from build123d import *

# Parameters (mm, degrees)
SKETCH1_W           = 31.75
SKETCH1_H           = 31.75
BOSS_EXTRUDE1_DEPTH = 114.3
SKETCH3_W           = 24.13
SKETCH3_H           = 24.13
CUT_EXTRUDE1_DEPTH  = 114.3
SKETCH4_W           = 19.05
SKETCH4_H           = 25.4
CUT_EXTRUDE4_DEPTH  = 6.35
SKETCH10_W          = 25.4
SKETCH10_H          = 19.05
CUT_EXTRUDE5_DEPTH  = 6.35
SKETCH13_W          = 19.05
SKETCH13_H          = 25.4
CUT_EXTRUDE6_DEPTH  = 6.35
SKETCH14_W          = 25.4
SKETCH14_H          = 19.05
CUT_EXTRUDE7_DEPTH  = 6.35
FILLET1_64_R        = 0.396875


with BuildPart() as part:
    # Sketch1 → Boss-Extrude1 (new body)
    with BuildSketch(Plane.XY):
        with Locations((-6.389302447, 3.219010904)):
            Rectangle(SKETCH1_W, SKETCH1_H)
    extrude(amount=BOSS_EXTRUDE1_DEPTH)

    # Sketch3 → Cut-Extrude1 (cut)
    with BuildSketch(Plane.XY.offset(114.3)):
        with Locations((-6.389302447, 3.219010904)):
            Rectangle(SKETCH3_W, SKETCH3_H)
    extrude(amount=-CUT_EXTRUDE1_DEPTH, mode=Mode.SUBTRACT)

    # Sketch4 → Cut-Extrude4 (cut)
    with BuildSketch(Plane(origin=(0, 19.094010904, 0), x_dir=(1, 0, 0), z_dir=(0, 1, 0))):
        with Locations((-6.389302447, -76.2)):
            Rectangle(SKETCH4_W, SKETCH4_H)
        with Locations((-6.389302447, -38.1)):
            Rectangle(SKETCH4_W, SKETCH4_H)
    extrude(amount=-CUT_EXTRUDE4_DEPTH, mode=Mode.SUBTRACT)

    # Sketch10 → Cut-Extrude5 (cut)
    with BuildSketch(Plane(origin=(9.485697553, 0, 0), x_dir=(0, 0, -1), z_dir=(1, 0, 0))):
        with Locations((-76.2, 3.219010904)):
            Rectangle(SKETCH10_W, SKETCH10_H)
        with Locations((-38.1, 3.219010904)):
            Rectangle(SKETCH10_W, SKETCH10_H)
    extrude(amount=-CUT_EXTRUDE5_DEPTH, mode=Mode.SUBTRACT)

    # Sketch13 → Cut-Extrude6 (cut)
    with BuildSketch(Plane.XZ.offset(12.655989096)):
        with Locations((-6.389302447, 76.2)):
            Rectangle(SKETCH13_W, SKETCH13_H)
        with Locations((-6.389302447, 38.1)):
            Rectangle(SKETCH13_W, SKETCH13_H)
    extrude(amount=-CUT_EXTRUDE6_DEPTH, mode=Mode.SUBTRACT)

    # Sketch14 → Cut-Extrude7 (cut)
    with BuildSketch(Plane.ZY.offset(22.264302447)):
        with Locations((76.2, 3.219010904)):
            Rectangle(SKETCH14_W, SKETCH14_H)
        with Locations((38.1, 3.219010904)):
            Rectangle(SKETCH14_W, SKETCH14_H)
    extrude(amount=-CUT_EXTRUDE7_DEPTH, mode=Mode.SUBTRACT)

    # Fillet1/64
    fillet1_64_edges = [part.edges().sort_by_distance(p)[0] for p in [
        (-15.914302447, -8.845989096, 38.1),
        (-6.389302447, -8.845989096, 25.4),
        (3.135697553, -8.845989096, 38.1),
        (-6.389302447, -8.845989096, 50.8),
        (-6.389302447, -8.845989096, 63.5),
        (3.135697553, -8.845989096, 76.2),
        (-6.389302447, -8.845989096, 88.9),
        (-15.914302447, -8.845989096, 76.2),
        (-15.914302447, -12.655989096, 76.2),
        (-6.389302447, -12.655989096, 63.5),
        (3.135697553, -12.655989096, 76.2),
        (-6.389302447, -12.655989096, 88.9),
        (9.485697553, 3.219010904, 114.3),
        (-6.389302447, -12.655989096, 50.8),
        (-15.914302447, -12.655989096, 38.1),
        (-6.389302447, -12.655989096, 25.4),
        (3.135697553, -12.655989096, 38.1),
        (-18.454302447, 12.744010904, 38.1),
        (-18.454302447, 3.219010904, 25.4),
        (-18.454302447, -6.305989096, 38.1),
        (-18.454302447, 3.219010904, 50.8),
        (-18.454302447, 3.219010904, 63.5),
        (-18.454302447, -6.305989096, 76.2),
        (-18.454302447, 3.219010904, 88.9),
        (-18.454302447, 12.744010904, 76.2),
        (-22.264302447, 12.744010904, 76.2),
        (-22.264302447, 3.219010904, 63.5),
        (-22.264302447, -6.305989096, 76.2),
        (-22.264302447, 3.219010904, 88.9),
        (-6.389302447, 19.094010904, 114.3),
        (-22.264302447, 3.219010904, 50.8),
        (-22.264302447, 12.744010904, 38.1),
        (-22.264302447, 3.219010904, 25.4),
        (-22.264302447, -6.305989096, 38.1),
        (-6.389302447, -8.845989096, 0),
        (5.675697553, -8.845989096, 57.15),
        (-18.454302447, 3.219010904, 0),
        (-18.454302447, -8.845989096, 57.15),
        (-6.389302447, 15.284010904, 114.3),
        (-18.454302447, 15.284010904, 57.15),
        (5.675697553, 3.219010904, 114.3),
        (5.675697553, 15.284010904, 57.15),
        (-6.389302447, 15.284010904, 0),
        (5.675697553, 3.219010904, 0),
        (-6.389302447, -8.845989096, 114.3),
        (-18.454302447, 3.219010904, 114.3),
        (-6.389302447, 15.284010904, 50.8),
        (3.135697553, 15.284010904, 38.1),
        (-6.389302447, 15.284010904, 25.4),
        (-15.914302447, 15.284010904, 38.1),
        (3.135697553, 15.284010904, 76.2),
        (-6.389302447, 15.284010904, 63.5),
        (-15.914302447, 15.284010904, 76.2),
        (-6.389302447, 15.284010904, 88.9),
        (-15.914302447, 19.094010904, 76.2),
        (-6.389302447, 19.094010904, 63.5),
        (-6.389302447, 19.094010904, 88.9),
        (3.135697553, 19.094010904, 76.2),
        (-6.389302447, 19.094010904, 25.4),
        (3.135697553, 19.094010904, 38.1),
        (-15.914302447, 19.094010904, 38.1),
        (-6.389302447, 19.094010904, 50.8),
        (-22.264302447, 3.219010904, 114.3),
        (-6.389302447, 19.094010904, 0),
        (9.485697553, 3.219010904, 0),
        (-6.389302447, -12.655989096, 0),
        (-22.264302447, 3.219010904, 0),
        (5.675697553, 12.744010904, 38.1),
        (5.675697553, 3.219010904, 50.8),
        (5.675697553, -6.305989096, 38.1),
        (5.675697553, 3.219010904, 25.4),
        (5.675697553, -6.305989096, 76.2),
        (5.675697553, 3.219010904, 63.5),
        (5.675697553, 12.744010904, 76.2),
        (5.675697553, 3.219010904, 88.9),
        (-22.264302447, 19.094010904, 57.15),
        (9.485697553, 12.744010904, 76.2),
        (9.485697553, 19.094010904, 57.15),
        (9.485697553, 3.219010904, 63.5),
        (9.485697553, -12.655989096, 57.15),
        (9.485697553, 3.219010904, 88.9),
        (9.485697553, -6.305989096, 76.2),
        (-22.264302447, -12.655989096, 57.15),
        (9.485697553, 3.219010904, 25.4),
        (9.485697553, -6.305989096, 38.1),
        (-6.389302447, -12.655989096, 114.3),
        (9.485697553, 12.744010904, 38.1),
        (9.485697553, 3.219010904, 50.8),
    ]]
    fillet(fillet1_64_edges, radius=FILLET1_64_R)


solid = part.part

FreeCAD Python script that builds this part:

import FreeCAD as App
import Part
import Sketcher
Q = App.Units.Quantity


def edges_at(feature, points):
    """Names of the edges that pass closest to the given points."""
    edges = feature.Shape.Edges
    near = lambda p: min(range(len(edges)), key=lambda i: edges[i].distToShape(Part.Vertex(*p))[0])
    return sorted({f"Edge{near(p) + 1}" for p in points})


def add_polygon(sketch, points):
    """Adds a closed chain of lines whose ends are joined by coincident constraints."""
    first, n = sketch.GeometryCount, len(points)
    for a, b in zip(points, points[1:] + points[:1]):
        sketch.addGeometry(Part.LineSegment(App.Vector(*a, 0), App.Vector(*b, 0)), False)
    for i in range(n):
        sketch.addConstraint(Sketcher.Constraint("Coincident", first + i, 2, first + (i + 1) % n, 1))

doc = App.newDocument("Part")
params = doc.addObject("Spreadsheet::Sheet", "Params")
for row, (alias, value) in enumerate([
    ("sketch1_width", "1.25 in"),
    ("pad1_length", "4.5 in"),
    ("sketch2_width", "0.95 in"),
    ("pocket1_length", "4.5 in"),
    ("sketch3_height", "1 in"),
    ("sketch3_width", "0.75 in"),
    ("pocket2_length", "0.25 in"),
    ("sketch4_height", "1 in"),
    ("sketch4_width", "0.75 in"),
    ("pocket3_length", "0.25 in"),
    ("sketch5_height", "1 in"),
    ("sketch5_width", "0.75 in"),
    ("pocket4_length", "0.25 in"),
    ("sketch6_height", "1 in"),
    ("sketch6_width", "0.75 in"),
    ("pocket5_length", "0.25 in"),
    ("fillet_radius", "0.015625 in"),
], start=1):
    params.set(f"A{row}", alias)
    params.set(f"B{row}", "=" + value)
    params.setAlias(f"B{row}", alias)

body = doc.addObject("PartDesign::Body", "Body")

sketch1 = body.newObject("Sketcher::SketchObject", "Sketch")
sketch1.AttachmentSupport = (doc.getObject("XY_Plane"), [""])
sketch1.MapMode = "FlatFace"
add_polygon(sketch1, [(-22.264302, 19.094011), (-22.264302, -12.655989), (9.485698, -12.655989), (9.485698, 19.094011)])
sketch1.addConstraint([
    Sketcher.Constraint("Vertical", 0),
    Sketcher.Constraint("Horizontal", 1),
    Sketcher.Constraint("Vertical", 2),
    Sketcher.Constraint("Horizontal", 3),
    Sketcher.Constraint("Equal", 3, 0),
    Sketcher.Constraint("DistanceX", 1, 1, 1, 2, Q("1.25 in")),
    Sketcher.Constraint("DistanceY", 0, 2, -1, 1, 12.655989),
    Sketcher.Constraint("DistanceX", 0, 2, -1, 1, 22.264302),
])
sketch1.setExpression("Constraints[9]", "Params.sketch1_width")
pad1 = body.newObject("PartDesign::Pad", "Pad")
pad1.Profile = sketch1
pad1.setExpression("Length", "Params.pad1_length")

sketch2 = body.newObject("Sketcher::SketchObject", "Sketch001")
sketch2.AttachmentSupport = (doc.getObject("XY_Plane"), [""])
sketch2.MapMode = "FlatFace"
sketch2.AttachmentOffset = App.Placement(App.Vector(0, 0, 4.5 * 25.4), App.Rotation())
add_polygon(sketch2, [(-18.454302, 15.284011), (-18.454302, -8.845989), (5.675698, -8.845989), (5.675698, 15.284011)])
sketch2.addConstraint([
    Sketcher.Constraint("Vertical", 0),
    Sketcher.Constraint("Horizontal", 1),
    Sketcher.Constraint("Vertical", 2),
    Sketcher.Constraint("Horizontal", 3),
    Sketcher.Constraint("Equal", 3, 0),
    Sketcher.Constraint("DistanceX", 1, 1, 1, 2, Q("0.95 in")),
    Sketcher.Constraint("DistanceY", 0, 2, -1, 1, 8.845989),
    Sketcher.Constraint("DistanceX", 0, 2, -1, 1, 18.454302),
])
sketch2.setExpression("Constraints[9]", "Params.sketch2_width")
pocket1 = body.newObject("PartDesign::Pocket", "Pocket")
pocket1.Profile = sketch2
pocket1.setExpression("Length", "Params.pocket1_length")

sketch3 = body.newObject("Sketcher::SketchObject", "Sketch002")
sketch3.AttachmentSupport = (doc.getObject("XZ_Plane"), [""])
sketch3.MapMode = "FlatFace"
sketch3.AttachmentOffset = App.Placement(App.Vector(0, 0, -19.094011), App.Rotation())
add_polygon(sketch3, [(-15.914302, 63.5), (-15.914302, 88.9), (3.135698, 88.9), (3.135698, 63.5)])
add_polygon(sketch3, [(-15.914302, 25.4), (-15.914302, 50.8), (3.135698, 50.8), (3.135698, 25.4)])
sketch3.addConstraint([
    Sketcher.Constraint("Vertical", 0),
    Sketcher.Constraint("Horizontal", 1),
    Sketcher.Constraint("Vertical", 2),
    Sketcher.Constraint("Horizontal", 3),
    Sketcher.Constraint("Vertical", 4),
    Sketcher.Constraint("Horizontal", 5),
    Sketcher.Constraint("Vertical", 6),
    Sketcher.Constraint("Horizontal", 7),
    Sketcher.Constraint("Vertical", 3, 2, 4, 2),
    Sketcher.Constraint("Vertical", 2, 2, 5, 2),
    Sketcher.Constraint("Equal", 2, 4),
    Sketcher.Constraint("DistanceY", 0, 1, 0, 2, Q("1 in")),
    Sketcher.Constraint("DistanceY", -1, 1, 4, 2, Q("2 in")),
    Sketcher.Constraint("DistanceX", 1, 1, 1, 2, Q("0.75 in")),
    Sketcher.Constraint("DistanceY", -1, 1, 0, 2, Q("3.5 in")),
    Sketcher.Constraint("DistanceX", 0, 2, -1, 1, 15.914302),
])
sketch3.setExpression("Constraints[19]", "Params.sketch3_height")
sketch3.setExpression("Constraints[21]", "Params.sketch3_width")
pocket2 = body.newObject("PartDesign::Pocket", "Pocket001")
pocket2.Profile = sketch3
pocket2.setExpression("Length", "Params.pocket2_length")
pocket2.Reversed = True

sketch4 = body.newObject("Sketcher::SketchObject", "Sketch003")
sketch4.AttachmentSupport = (doc.getObject("YZ_Plane"), [""])
sketch4.MapMode = "FlatFace"
sketch4.AttachmentOffset = App.Placement(App.Vector(0, 0, 9.485698), App.Rotation())
add_polygon(sketch4, [(12.744011, 88.9), (-6.305989, 88.9), (-6.305989, 63.5), (12.744011, 63.5)])
add_polygon(sketch4, [(12.744011, 50.8), (-6.305989, 50.8), (-6.305989, 25.4), (12.744011, 25.4)])
sketch4.addConstraint([
    Sketcher.Constraint("Horizontal", 0),
    Sketcher.Constraint("Vertical", 1),
    Sketcher.Constraint("Horizontal", 2),
    Sketcher.Constraint("Vertical", 3),
    Sketcher.Constraint("Horizontal", 4),
    Sketcher.Constraint("Vertical", 5),
    Sketcher.Constraint("Horizontal", 6),
    Sketcher.Constraint("Vertical", 7),
    Sketcher.Constraint("Vertical", 1, 2, 4, 2),
    Sketcher.Constraint("Vertical", 3, 2, 6, 2),
    Sketcher.Constraint("Equal", 3, 5),
    Sketcher.Constraint("DistanceY", 1, 2, 1, 1, Q("1 in")),
    Sketcher.Constraint("DistanceY", -1, 1, 4, 2, Q("2 in")),
    Sketcher.Constraint("DistanceX", 0, 2, 0, 1, Q("0.75 in")),
    Sketcher.Constraint("DistanceY", -1, 1, 0, 2, Q("3.5 in")),
    Sketcher.Constraint("DistanceX", 0, 2, -1, 1, 6.305989),
])
sketch4.setExpression("Constraints[19]", "Params.sketch4_height")
sketch4.setExpression("Constraints[21]", "Params.sketch4_width")
pocket3 = body.newObject("PartDesign::Pocket", "Pocket002")
pocket3.Profile = sketch4
pocket3.setExpression("Length", "Params.pocket3_length")

sketch5 = body.newObject("Sketcher::SketchObject", "Sketch004")
sketch5.AttachmentSupport = (doc.getObject("XZ_Plane"), [""])
sketch5.MapMode = "FlatFace"
sketch5.AttachmentOffset = App.Placement(App.Vector(0, 0, 12.655989), App.Rotation())
add_polygon(sketch5, [(-15.914302, 88.9), (-15.914302, 63.5), (3.135698, 63.5), (3.135698, 88.9)])
add_polygon(sketch5, [(-15.914302, 50.8), (-15.914302, 25.4), (3.135698, 25.4), (3.135698, 50.8)])
sketch5.addConstraint([
    Sketcher.Constraint("Vertical", 0),
    Sketcher.Constraint("Horizontal", 1),
    Sketcher.Constraint("Vertical", 2),
    Sketcher.Constraint("Horizontal", 3),
    Sketcher.Constraint("Vertical", 4),
    Sketcher.Constraint("Horizontal", 5),
    Sketcher.Constraint("Vertical", 6),
    Sketcher.Constraint("Horizontal", 7),
    Sketcher.Constraint("Vertical", 3, 2, 4, 2),
    Sketcher.Constraint("Vertical", 2, 2, 5, 2),
    Sketcher.Constraint("Equal", 2, 4),
    Sketcher.Constraint("DistanceY", 0, 2, 0, 1, Q("1 in")),
    Sketcher.Constraint("DistanceY", -1, 1, 4, 2, Q("1 in")),
    Sketcher.Constraint("DistanceX", 1, 1, 1, 2, Q("0.75 in")),
    Sketcher.Constraint("DistanceY", -1, 1, 0, 2, Q("2.5 in")),
    Sketcher.Constraint("DistanceX", 0, 2, -1, 1, 15.914302),
])
sketch5.setExpression("Constraints[19]", "Params.sketch5_height")
sketch5.setExpression("Constraints[21]", "Params.sketch5_width")
pocket4 = body.newObject("PartDesign::Pocket", "Pocket003")
pocket4.Profile = sketch5
pocket4.setExpression("Length", "Params.pocket4_length")

sketch6 = body.newObject("Sketcher::SketchObject", "Sketch005")
sketch6.AttachmentSupport = (doc.getObject("YZ_Plane"), [""])
sketch6.MapMode = "FlatFace"
sketch6.AttachmentOffset = App.Placement(App.Vector(0, 0, -22.264302), App.Rotation())
add_polygon(sketch6, [(12.744011, 63.5), (-6.305989, 63.5), (-6.305989, 88.9), (12.744011, 88.9)])
add_polygon(sketch6, [(12.744011, 25.4), (-6.305989, 25.4), (-6.305989, 50.8), (12.744011, 50.8)])
sketch6.addConstraint([
    Sketcher.Constraint("Horizontal", 0),
    Sketcher.Constraint("Vertical", 1),
    Sketcher.Constraint("Horizontal", 2),
    Sketcher.Constraint("Vertical", 3),
    Sketcher.Constraint("Horizontal", 4),
    Sketcher.Constraint("Vertical", 5),
    Sketcher.Constraint("Horizontal", 6),
    Sketcher.Constraint("Vertical", 7),
    Sketcher.Constraint("Vertical", 1, 2, 4, 2),
    Sketcher.Constraint("Vertical", 3, 2, 6, 2),
    Sketcher.Constraint("Equal", 3, 5),
    Sketcher.Constraint("DistanceY", 1, 1, 1, 2, Q("1 in")),
    Sketcher.Constraint("DistanceY", -1, 1, 4, 2, Q("1 in")),
    Sketcher.Constraint("DistanceX", 0, 2, 0, 1, Q("0.75 in")),
    Sketcher.Constraint("DistanceY", -1, 1, 0, 2, Q("2.5 in")),
    Sketcher.Constraint("DistanceX", 0, 2, -1, 1, 6.305989),
])
sketch6.setExpression("Constraints[19]", "Params.sketch6_height")
sketch6.setExpression("Constraints[21]", "Params.sketch6_width")
pocket5 = body.newObject("PartDesign::Pocket", "Pocket004")
pocket5.Profile = sketch6
pocket5.setExpression("Length", "Params.pocket5_length")
pocket5.Reversed = True
doc.recompute()

fillet = body.newObject("PartDesign::Fillet", "Fillet")
fillet.Base = (pocket5, edges_at(pocket5, [
    (-15.914, -8.846, 38.1),
    (-6.389, -8.846, 25.4),
    (3.136, -8.846, 38.1),
    (-6.389, -8.846, 50.8),
    (-6.389, -8.846, 63.5),
    (3.136, -8.846, 76.2),
    (-6.389, -8.846, 88.9),
    (-15.914, -8.846, 76.2),
    (-15.914, -12.656, 76.2),
    (-6.389, -12.656, 63.5),
    (3.136, -12.656, 76.2),
    (-6.389, -12.656, 88.9),
    (9.486, 3.219, 114.3),
    (-6.389, -12.656, 50.8),
    (-15.914, -12.656, 38.1),
    (-6.389, -12.656, 25.4),
    (3.136, -12.656, 38.1),
    (-18.454, 12.744, 38.1),
    (-18.454, 3.219, 25.4),
    (-18.454, -6.306, 38.1),
    (-18.454, 3.219, 50.8),
    (-18.454, 3.219, 63.5),
    (-18.454, -6.306, 76.2),
    (-18.454, 3.219, 88.9),
    (-18.454, 12.744, 76.2),
    (-22.264, 12.744, 76.2),
    (-22.264, 3.219, 63.5),
    (-22.264, -6.306, 76.2),
    (-22.264, 3.219, 88.9),
    (-6.389, 19.094, 114.3),
    (-22.264, 3.219, 50.8),
    (-22.264, 12.744, 38.1),
    (-22.264, 3.219, 25.4),
    (-22.264, -6.306, 38.1),
    (-6.389, -8.846, 0),
    (5.676, -8.846, 57.15),
    (-18.454, 3.219, 0),
    (-18.454, -8.846, 57.15),
    (-6.389, 15.284, 114.3),
    (-18.454, 15.284, 57.15),
    (5.676, 3.219, 114.3),
    (5.676, 15.284, 57.15),
    (-6.389, 15.284, 0),
    (5.676, 3.219, 0),
    (-6.389, -8.846, 114.3),
    (-18.454, 3.219, 114.3),
    (-6.389, 15.284, 50.8),
    (3.136, 15.284, 38.1),
    (-6.389, 15.284, 25.4),
    (-15.914, 15.284, 38.1),
    (3.136, 15.284, 76.2),
    (-6.389, 15.284, 63.5),
    (-15.914, 15.284, 76.2),
    (-6.389, 15.284, 88.9),
    (-15.914, 19.094, 76.2),
    (-6.389, 19.094, 63.5),
    (-6.389, 19.094, 88.9),
    (3.136, 19.094, 76.2),
    (-6.389, 19.094, 25.4),
    (3.136, 19.094, 38.1),
    (-15.914, 19.094, 38.1),
    (-6.389, 19.094, 50.8),
    (-22.264, 3.219, 114.3),
    (-6.389, 19.094, 0),
    (9.486, 3.219, 0),
    (-6.389, -12.656, 0),
    (-22.264, 3.219, 0),
    (5.676, 12.744, 38.1),
    (5.676, 3.219, 50.8),
    (5.676, -6.306, 38.1),
    (5.676, 3.219, 25.4),
    (5.676, -6.306, 76.2),
    (5.676, 3.219, 63.5),
    (5.676, 12.744, 76.2),
    (5.676, 3.219, 88.9),
    (-22.264, 19.094, 57.15),
    (9.486, 12.744, 76.2),
    (9.486, 19.094, 57.15),
    (9.486, 3.219, 63.5),
    (9.486, -12.656, 57.15),
    (9.486, 3.219, 88.9),
    (9.486, -6.306, 76.2),
    (-22.264, -12.656, 57.15),
    (9.486, 3.219, 25.4),
    (9.486, -6.306, 38.1),
    (-6.389, -12.656, 114.3),
    (9.486, 12.744, 38.1),
    (9.486, 3.219, 50.8),
]))
fillet.setExpression("Radius", "Params.fillet_radius")

doc.recompute()
